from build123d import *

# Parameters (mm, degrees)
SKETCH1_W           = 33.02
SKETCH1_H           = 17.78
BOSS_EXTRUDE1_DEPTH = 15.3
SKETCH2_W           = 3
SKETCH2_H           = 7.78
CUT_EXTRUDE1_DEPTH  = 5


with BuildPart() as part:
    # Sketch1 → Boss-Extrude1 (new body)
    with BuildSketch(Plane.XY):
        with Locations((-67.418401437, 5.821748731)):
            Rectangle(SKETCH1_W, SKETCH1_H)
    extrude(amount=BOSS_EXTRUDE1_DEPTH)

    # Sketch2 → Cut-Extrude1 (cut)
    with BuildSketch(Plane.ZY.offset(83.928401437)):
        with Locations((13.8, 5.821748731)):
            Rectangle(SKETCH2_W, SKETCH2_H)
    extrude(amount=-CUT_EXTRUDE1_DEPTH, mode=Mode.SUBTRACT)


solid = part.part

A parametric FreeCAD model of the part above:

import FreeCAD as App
import Part
import Sketcher


def add_polygon(sketch, points):
    """Adds a closed chain of lines whose ends are joined by coincident constraints."""
    first, n = sketch.GeometryCount, len(points)
    for a, b in zip(points, points[1:] + points[:1]):
        sketch.addGeometry(Part.LineSegment(App.Vector(*a, 0), App.Vector(*b, 0)), False)
    for i in range(n):
        sketch.addConstraint(Sketcher.Constraint("Coincident", first + i, 2, first + (i + 1) % n, 1))

doc = App.newDocument("Part")
body = doc.addObject("PartDesign::Body", "Body")

sketch1 = body.newObject("Sketcher::SketchObject", "Sketch")
sketch1.AttachmentSupport = (doc.getObject("XY_Plane"), [""])
sketch1.MapMode = "FlatFace"
add_polygon(sketch1, [(-84, 15), (-84, -3), (-51, -3), (-51, 15)])
sketch1.addConstraint(Sketcher.Constraint("Vertical", 0))
sketch1.addConstraint(Sketcher.Constraint("Horizontal", 1))
sketch1.addConstraint(Sketcher.Constraint("Vertical", 2))
sketch1.addConstraint(Sketcher.Constraint("Horizontal", 3))
sketch1.addConstraint(Sketcher.Constraint("DistanceX", 1, 1, 1, 2, 33.02))
sketch1.addConstraint(Sketcher.Constraint("DistanceY", 0, 2, 0, 1, 17.78))
sketch1.addConstraint(Sketcher.Constraint("DistanceX", 0, 2, -1, 1, 83.928401))
sketch1.addConstraint(Sketcher.Constraint("DistanceY", 0, 2, -1, 1, 3.068251))
pad1 = body.newObject("PartDesign::Pad", "Pad")
pad1.Profile = sketch1
pad1.Length = 15.3

sketch2 = body.newObject("Sketcher::SketchObject", "Sketch001")
sketch2.AttachmentSupport = (doc.getObject("YZ_Plane"), [""])
sketch2.MapMode = "FlatFace"
sketch2.AttachmentOffset = App.Placement(App.Vector(0, 0, -83.928401), App.Rotation())
add_polygon(sketch2, [(9.7, 12.3), (1.9, 12.3), (1.9, 15.3), (9.7, 15.3)])
sketch2.addConstraint(Sketcher.Constraint("Horizontal", 0))
sketch2.addConstraint(Sketcher.Constraint("Vertical", 1))
sketch2.addConstraint(Sketcher.Constraint("Horizontal", 2))
sketch2.addConstraint(Sketcher.Constraint("Vertical", 3))
sketch2.addConstraint(Sketcher.Constraint("DistanceY", 1, 1, 1, 2, 3.0))
sketch2.addConstraint(Sketcher.Constraint("DistanceX", 0, 2, 0, 1, 7.78))
sketch2.addConstraint(Sketcher.Constraint("DistanceY", -1, 1, 0, 2, 12.3))
sketch2.addConstraint(Sketcher.Constraint("DistanceX", -1, 1, 0, 2, 1.931749))
pocket1 = body.newObject("PartDesign::Pocket", "Pocket")
pocket1.Profile = sketch2
pocket1.Length = 5
pocket1.Reversed = True

doc.recompute()
